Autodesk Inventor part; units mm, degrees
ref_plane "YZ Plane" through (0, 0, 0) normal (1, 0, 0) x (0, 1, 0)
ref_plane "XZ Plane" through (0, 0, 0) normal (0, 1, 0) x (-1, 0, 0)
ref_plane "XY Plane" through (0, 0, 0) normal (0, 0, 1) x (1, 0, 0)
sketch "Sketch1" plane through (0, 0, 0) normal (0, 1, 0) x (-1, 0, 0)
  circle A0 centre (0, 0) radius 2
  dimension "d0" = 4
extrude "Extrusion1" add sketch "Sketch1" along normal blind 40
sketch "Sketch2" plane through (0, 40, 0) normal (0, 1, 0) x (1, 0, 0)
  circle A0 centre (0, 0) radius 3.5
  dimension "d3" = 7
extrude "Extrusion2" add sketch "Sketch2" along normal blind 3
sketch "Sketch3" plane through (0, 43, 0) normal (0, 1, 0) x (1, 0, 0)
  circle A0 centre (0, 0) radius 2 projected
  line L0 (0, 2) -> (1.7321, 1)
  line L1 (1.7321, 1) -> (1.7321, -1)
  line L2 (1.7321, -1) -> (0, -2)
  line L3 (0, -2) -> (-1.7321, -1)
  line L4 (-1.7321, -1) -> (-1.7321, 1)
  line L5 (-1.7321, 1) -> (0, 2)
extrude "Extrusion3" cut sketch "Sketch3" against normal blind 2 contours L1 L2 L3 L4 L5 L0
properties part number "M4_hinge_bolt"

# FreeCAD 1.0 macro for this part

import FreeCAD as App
import Part
import Sketcher

V = App.Vector
Q = App.Units.Quantity

doc = App.newDocument("Part")
body = doc.addObject("PartDesign::Body", "Body")

sketch1 = body.newObject("Sketcher::SketchObject", "Sketch")
sketch1.AttachmentSupport = (doc.getObject("XZ_Plane"), [""])
sketch1.MapMode = "FlatFace"
sketch1.addGeometry(Part.Circle(V(0, 0, 0), V(0, 0, 1), 2), False)
sketch1.addConstraint(Sketcher.Constraint("Coincident", 0, 3, -1, 1))
sketch1.addConstraint(Sketcher.Constraint("Diameter", 0, Q("4 mm")))
pad1 = body.newObject("PartDesign::Pad", "Pad")
pad1.Profile = sketch1
pad1.Length = 40
pad1.Reversed = True

sketch2 = body.newObject("Sketcher::SketchObject", "Sketch001")
sketch2.AttachmentSupport = (doc.getObject("XZ_Plane"), [""])
sketch2.MapMode = "FlatFace"
sketch2.AttachmentOffset = App.Placement(V(0, 0, -40), App.Rotation())
sketch2.addGeometry(Part.Circle(V(0, 0, 0), V(0, 0, 1), 3.5), False)
sketch2.addConstraint(Sketcher.Constraint("Coincident", 0, 3, -1, 1))
sketch2.addConstraint(Sketcher.Constraint("Diameter", 0, Q("7 mm")))
pad2 = body.newObject("PartDesign::Pad", "Pad001")
pad2.Profile = sketch2
pad2.Length = 3
pad2.Reversed = True

sketch3 = body.newObject("Sketcher::SketchObject", "Sketch002")
sketch3.AttachmentSupport = (doc.getObject("XZ_Plane"), [""])
sketch3.MapMode = "FlatFace"
sketch3.AttachmentOffset = App.Placement(V(0, 0, -43), App.Rotation())
sketch3.addGeometry(Part.LineSegment(V(1.7321, 1, 0), V(1.7321, -1, 0)), False)
sketch3.addGeometry(Part.LineSegment(V(1.7321, -1, 0), V(0, -2, 0)), False)
sketch3.addGeometry(Part.LineSegment(V(0, -2, 0), V(-1.7321, -1, 0)), False)
sketch3.addGeometry(Part.LineSegment(V(-1.7321, -1, 0), V(-1.7321, 1, 0)), False)
sketch3.addGeometry(Part.LineSegment(V(-1.7321, 1, 0), V(0, 2, 0)), False)
sketch3.addGeometry(Part.LineSegment(V(0, 2, 0), V(1.7321, 1, 0)), False)
sketch3.addConstraint(Sketcher.Constraint("Coincident", 0, 2, 1, 1))
sketch3.addConstraint(Sketcher.Constraint("Coincident", 1, 2, 2, 1))
sketch3.addConstraint(Sketcher.Constraint("Coincident", 2, 2, 3, 1))
sketch3.addConstraint(Sketcher.Constraint("Coincident", 3, 2, 4, 1))
sketch3.addConstraint(Sketcher.Constraint("Coincident", 4, 2, 5, 1))
sketch3.addConstraint(Sketcher.Constraint("Coincident", 5, 2, 0, 1))
sketch3.addConstraint(Sketcher.Constraint("Vertical", 0))
sketch3.addConstraint(Sketcher.Constraint("Vertical", 3))
sketch3.addConstraint(Sketcher.Constraint("Symmetric", 0, 2, 3, 2, -1, 1))
sketch3.addConstraint(Sketcher.Constraint("Symmetric", 1, 2, 4, 2, -1, 1))
sketch3.addConstraint(Sketcher.Constraint("PointOnObject", 1, 2, -2))
sketch3.addConstraint(Sketcher.Constraint("Parallel", 2, 5))
sketch3.addConstraint(Sketcher.Constraint("Horizontal", 0, 2, 2, 2))
sketch3.addConstraint(Sketcher.Constraint("DistanceY", 0, 2, 0, 1, Q("2 mm")))
sketch3.addConstraint(Sketcher.Constraint("Angle", 1, Q("-150.0007 deg")))
sketch3.addConstraint(Sketcher.Constraint("Distance", 1, Q("2 mm")))
pocket1 = body.newObject("PartDesign::Pocket", "Pocket")
pocket1.Profile = sketch3
pocket1.Length = 2
pocket1.Reversed = True

doc.recompute()
